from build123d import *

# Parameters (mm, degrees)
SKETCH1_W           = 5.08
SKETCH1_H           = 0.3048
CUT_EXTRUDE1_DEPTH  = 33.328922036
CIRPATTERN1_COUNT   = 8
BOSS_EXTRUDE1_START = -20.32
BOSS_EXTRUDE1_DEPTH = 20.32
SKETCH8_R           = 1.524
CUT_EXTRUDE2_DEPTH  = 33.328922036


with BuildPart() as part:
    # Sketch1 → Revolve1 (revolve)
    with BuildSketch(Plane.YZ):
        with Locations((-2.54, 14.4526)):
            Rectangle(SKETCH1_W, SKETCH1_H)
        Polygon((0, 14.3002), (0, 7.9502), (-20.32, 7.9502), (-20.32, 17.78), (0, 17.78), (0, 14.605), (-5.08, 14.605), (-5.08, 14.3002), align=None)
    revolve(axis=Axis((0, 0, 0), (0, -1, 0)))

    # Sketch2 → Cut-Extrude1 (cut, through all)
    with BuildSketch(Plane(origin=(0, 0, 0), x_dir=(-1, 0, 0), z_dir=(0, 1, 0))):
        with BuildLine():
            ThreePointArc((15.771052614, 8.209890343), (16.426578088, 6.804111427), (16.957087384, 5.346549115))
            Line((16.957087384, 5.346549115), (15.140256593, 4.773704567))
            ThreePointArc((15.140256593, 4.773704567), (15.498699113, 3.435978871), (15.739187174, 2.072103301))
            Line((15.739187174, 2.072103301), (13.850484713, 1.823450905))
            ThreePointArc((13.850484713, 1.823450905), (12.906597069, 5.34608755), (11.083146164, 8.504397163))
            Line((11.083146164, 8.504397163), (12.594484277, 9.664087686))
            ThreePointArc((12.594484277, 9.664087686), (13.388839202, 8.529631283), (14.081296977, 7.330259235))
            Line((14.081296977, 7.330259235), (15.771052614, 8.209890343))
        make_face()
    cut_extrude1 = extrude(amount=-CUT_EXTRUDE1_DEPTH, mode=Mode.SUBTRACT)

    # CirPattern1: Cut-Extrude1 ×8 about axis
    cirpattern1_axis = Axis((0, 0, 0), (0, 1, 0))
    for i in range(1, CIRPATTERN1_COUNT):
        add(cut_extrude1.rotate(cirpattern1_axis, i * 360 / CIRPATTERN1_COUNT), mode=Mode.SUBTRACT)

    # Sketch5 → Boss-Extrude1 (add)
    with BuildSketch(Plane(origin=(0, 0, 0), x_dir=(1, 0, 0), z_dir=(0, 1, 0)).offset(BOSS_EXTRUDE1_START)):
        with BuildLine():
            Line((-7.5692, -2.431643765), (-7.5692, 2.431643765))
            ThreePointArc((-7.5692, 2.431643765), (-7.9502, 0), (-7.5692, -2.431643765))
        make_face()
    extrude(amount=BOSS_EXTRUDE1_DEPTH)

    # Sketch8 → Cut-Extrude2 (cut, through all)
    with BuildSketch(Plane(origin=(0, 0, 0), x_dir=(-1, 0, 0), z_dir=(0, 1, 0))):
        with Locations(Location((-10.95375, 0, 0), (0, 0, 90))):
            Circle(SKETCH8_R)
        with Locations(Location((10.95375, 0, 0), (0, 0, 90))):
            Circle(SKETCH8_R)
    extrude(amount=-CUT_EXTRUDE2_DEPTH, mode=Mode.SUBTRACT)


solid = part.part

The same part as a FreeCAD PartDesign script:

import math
import FreeCAD as App
import Part
import Sketcher

V = App.Vector
Q = App.Units.Quantity


def add_polygon(sketch, points):
    """Adds a closed chain of lines whose ends are joined by coincident constraints."""
    first, n = sketch.GeometryCount, len(points)
    for a, b in zip(points, points[1:] + points[:1]):
        sketch.addGeometry(Part.LineSegment(App.Vector(*a, 0), App.Vector(*b, 0)), False)
    for i in range(n):
        sketch.addConstraint(Sketcher.Constraint("Coincident", first + i, 2, first + (i + 1) % n, 1))

doc = App.newDocument("Part")
body = doc.addObject("PartDesign::Body", "Body")

sketch1 = doc.addObject("Sketcher::SketchObject", "Sketch")
body.addObject(sketch1)
sketch1.AttachmentSupport = (doc.YZ_Plane, [""])
sketch1.MapMode = "FlatFace"
add_polygon(sketch1, [(0, 18), (-20, 18), (-20, 8), (0, 8)])
sketch1.addConstraint([
    Sketcher.Constraint("Horizontal", 0),
    Sketcher.Constraint("Vertical", 1),
    Sketcher.Constraint("Horizontal", 2),
    Sketcher.Constraint("Vertical", 3),
    Sketcher.Constraint("PointOnObject", 2, 2, -2),
    Sketcher.Constraint("DistanceX", 0, 2, 0, 1, Q("0.8 in")),
    Sketcher.Constraint("DistanceY", -1, 1, 0, 2, Q("0.7 in")),
    Sketcher.Constraint("DistanceY", 1, 2, 1, 1, Q("0.387 in")),
])
revolution = doc.addObject("PartDesign::Revolution", "Revolution")
body.addObject(revolution)
revolution.Profile = sketch1
revolution.ReferenceAxis = (sketch1, ["H_Axis"])
revolution.Angle = 360

sketch2 = doc.addObject("Sketcher::SketchObject", "Sketch001")
body.addObject(sketch2)
sketch2.AttachmentSupport = (doc.XZ_Plane, [""])
sketch2.MapMode = "FlatFace"
sketch2.addGeometry([
    Part.ArcOfCircle(Part.Circle(V(0, 0, 0), V(0, 0, 1), 17.8), math.radians(152.5), math.radians(162.5)),
    Part.LineSegment(V(-15.8, 8.2, 0), V(-14.1, 7.3, 0)),
    Part.ArcOfCircle(Part.Circle(V(0, 0, 0), V(0, 0, 1), 15.9), math.radians(142.5), math.radians(152.5)),
    Part.LineSegment(V(-12.6, 9.7, 0), V(-11.1, 8.5, 0)),
    Part.ArcOfCircle(Part.Circle(V(0, 0, 0), V(0, 0, 1), 14), math.radians(143), math.radians(173)),
    Part.LineSegment(V(-13.9, 1.8, 0), V(-15.7, 2.1, 0)),
    Part.ArcOfCircle(Part.Circle(V(0, 0, 0), V(0, 0, 1), 15.9), math.radians(162.5), math.radians(172.5)),
    Part.LineSegment(V(-15.1, 4.8, 0), V(-17, 5.3, 0)),
], False)
sketch2.addConstraint([
    Sketcher.Constraint("Coincident", 0, 1, 1, 1),
    Sketcher.Constraint("Coincident", 1, 2, 2, 2),
    Sketcher.Constraint("Coincident", 2, 1, 3, 1),
    Sketcher.Constraint("Coincident", 3, 2, 4, 1),
    Sketcher.Constraint("Coincident", 4, 2, 5, 1),
    Sketcher.Constraint("Coincident", 5, 2, 6, 2),
    Sketcher.Constraint("Coincident", 6, 1, 7, 1),
    Sketcher.Constraint("Coincident", 7, 2, 0, 2),
    Sketcher.Constraint("Coincident", 0, 3, -1, 1),
    Sketcher.Constraint("Coincident", 2, 3, -1, 1),
    Sketcher.Constraint("Coincident", 4, 3, -1, 1),
    Sketcher.Constraint("Coincident", 6, 3, -1, 1),
    Sketcher.Constraint("Equal", 2, 6),
    Sketcher.Constraint("Equal", 1, 3),
    Sketcher.Constraint("Radius", 0, Q("0.7 in")),
    Sketcher.Constraint("Radius", 4, Q("0.55 in")),
    Sketcher.Constraint("Angle", 1, Q("-27.5 deg")),
    Sketcher.Constraint("Angle", 3, Q("-37.5 deg")),
    Sketcher.Constraint("Angle", 5, Q("172.5 deg")),
    Sketcher.Constraint("Angle", 7, Q("162.5 deg")),
    Sketcher.Constraint("DistanceX", 4, 2, 2, 1, Q("1.256 mm")),
    Sketcher.Constraint("DistanceY", 5, 2, 6, 1, Q("2.701601 mm")),
    Sketcher.Constraint("DistanceX", 7, 2, 5, 2, Q("1.2179 mm")),
    Sketcher.Constraint("DistanceY", -1, 1, 0, 1, Q("8.20989 mm")),
])
pocket1 = doc.addObject("PartDesign::Pocket", "Pocket")
body.addObject(pocket1)
pocket1.Profile = sketch2
pocket1.Type = "ThroughAll"
pocket1.Reversed = True
doc.recompute()

polarpattern = doc.addObject("PartDesign::PolarPattern", "PolarPattern")
body.addObject(polarpattern)
polarpattern.Originals = [pocket1]
polarpattern.Axis = (doc.Y_Axis, [""])
polarpattern.Angle = 360
polarpattern.Occurrences = 8
body.Tip = polarpattern

sketch3 = doc.addObject("Sketcher::SketchObject", "Sketch002")
body.addObject(sketch3)
sketch3.AttachmentSupport = (doc.XZ_Plane, [""])
sketch3.MapMode = "FlatFace"
sketch3.AttachmentOffset = App.Placement(V(0, 0, 0.8 * 25.4), App.Rotation())
sketch3.addGeometry([
    Part.LineSegment(V(-7.6, 2.4, 0), V(-7.6, -2.4, 0)),
    Part.ArcOfCircle(Part.Circle(V(0, 0, 0), V(0, 0, 1), 8), math.radians(162), math.radians(198)),
], False)
sketch3.addConstraint([
    Sketcher.Constraint("Coincident", 0, 1, 1, 1),
    Sketcher.Constraint("Coincident", 1, 2, 0, 2),
    Sketcher.Constraint("Vertical", 0),
    Sketcher.Constraint("Coincident", 1, 3, -1, 1),
    Sketcher.Constraint("Radius", 1, Q("0.313 in")),
    Sketcher.Constraint("DistanceX", 0, 1, -1, 1, Q("0.298 in")),
])
pad1 = doc.addObject("PartDesign::Pad", "Pad")
body.addObject(pad1)
pad1.Profile = sketch3
pad1.Length = Q("0.8 in")
pad1.Reversed = True

sketch4 = doc.addObject("Sketcher::SketchObject", "Sketch003")
body.addObject(sketch4)
sketch4.AttachmentSupport = (doc.XZ_Plane, [""])
sketch4.MapMode = "FlatFace"
sketch4.addGeometry([
    Part.Circle(V(11, 0, 0), V(0, 0, 1), 1.5),
    Part.Circle(V(-11, 0, 0), V(0, 0, 1), 1.5),
], False)
sketch4.addConstraint([
    Sketcher.Constraint("Equal", 0, 1),
    Sketcher.Constraint("Symmetric", 0, 3, 1, 3, -1, 1),
    Sketcher.Constraint("PointOnObject", 0, 3, -1),
    Sketcher.Constraint("Diameter", 0, Q("0.12 in")),
    Sketcher.Constraint("DistanceX", 1, 3, 0, 3, Q("0.8625 in")),
])
pocket2 = doc.addObject("PartDesign::Pocket", "Pocket001")
body.addObject(pocket2)
pocket2.Profile = sketch4
pocket2.Type = "ThroughAll"
pocket2.Reversed = True

doc.recompute()
